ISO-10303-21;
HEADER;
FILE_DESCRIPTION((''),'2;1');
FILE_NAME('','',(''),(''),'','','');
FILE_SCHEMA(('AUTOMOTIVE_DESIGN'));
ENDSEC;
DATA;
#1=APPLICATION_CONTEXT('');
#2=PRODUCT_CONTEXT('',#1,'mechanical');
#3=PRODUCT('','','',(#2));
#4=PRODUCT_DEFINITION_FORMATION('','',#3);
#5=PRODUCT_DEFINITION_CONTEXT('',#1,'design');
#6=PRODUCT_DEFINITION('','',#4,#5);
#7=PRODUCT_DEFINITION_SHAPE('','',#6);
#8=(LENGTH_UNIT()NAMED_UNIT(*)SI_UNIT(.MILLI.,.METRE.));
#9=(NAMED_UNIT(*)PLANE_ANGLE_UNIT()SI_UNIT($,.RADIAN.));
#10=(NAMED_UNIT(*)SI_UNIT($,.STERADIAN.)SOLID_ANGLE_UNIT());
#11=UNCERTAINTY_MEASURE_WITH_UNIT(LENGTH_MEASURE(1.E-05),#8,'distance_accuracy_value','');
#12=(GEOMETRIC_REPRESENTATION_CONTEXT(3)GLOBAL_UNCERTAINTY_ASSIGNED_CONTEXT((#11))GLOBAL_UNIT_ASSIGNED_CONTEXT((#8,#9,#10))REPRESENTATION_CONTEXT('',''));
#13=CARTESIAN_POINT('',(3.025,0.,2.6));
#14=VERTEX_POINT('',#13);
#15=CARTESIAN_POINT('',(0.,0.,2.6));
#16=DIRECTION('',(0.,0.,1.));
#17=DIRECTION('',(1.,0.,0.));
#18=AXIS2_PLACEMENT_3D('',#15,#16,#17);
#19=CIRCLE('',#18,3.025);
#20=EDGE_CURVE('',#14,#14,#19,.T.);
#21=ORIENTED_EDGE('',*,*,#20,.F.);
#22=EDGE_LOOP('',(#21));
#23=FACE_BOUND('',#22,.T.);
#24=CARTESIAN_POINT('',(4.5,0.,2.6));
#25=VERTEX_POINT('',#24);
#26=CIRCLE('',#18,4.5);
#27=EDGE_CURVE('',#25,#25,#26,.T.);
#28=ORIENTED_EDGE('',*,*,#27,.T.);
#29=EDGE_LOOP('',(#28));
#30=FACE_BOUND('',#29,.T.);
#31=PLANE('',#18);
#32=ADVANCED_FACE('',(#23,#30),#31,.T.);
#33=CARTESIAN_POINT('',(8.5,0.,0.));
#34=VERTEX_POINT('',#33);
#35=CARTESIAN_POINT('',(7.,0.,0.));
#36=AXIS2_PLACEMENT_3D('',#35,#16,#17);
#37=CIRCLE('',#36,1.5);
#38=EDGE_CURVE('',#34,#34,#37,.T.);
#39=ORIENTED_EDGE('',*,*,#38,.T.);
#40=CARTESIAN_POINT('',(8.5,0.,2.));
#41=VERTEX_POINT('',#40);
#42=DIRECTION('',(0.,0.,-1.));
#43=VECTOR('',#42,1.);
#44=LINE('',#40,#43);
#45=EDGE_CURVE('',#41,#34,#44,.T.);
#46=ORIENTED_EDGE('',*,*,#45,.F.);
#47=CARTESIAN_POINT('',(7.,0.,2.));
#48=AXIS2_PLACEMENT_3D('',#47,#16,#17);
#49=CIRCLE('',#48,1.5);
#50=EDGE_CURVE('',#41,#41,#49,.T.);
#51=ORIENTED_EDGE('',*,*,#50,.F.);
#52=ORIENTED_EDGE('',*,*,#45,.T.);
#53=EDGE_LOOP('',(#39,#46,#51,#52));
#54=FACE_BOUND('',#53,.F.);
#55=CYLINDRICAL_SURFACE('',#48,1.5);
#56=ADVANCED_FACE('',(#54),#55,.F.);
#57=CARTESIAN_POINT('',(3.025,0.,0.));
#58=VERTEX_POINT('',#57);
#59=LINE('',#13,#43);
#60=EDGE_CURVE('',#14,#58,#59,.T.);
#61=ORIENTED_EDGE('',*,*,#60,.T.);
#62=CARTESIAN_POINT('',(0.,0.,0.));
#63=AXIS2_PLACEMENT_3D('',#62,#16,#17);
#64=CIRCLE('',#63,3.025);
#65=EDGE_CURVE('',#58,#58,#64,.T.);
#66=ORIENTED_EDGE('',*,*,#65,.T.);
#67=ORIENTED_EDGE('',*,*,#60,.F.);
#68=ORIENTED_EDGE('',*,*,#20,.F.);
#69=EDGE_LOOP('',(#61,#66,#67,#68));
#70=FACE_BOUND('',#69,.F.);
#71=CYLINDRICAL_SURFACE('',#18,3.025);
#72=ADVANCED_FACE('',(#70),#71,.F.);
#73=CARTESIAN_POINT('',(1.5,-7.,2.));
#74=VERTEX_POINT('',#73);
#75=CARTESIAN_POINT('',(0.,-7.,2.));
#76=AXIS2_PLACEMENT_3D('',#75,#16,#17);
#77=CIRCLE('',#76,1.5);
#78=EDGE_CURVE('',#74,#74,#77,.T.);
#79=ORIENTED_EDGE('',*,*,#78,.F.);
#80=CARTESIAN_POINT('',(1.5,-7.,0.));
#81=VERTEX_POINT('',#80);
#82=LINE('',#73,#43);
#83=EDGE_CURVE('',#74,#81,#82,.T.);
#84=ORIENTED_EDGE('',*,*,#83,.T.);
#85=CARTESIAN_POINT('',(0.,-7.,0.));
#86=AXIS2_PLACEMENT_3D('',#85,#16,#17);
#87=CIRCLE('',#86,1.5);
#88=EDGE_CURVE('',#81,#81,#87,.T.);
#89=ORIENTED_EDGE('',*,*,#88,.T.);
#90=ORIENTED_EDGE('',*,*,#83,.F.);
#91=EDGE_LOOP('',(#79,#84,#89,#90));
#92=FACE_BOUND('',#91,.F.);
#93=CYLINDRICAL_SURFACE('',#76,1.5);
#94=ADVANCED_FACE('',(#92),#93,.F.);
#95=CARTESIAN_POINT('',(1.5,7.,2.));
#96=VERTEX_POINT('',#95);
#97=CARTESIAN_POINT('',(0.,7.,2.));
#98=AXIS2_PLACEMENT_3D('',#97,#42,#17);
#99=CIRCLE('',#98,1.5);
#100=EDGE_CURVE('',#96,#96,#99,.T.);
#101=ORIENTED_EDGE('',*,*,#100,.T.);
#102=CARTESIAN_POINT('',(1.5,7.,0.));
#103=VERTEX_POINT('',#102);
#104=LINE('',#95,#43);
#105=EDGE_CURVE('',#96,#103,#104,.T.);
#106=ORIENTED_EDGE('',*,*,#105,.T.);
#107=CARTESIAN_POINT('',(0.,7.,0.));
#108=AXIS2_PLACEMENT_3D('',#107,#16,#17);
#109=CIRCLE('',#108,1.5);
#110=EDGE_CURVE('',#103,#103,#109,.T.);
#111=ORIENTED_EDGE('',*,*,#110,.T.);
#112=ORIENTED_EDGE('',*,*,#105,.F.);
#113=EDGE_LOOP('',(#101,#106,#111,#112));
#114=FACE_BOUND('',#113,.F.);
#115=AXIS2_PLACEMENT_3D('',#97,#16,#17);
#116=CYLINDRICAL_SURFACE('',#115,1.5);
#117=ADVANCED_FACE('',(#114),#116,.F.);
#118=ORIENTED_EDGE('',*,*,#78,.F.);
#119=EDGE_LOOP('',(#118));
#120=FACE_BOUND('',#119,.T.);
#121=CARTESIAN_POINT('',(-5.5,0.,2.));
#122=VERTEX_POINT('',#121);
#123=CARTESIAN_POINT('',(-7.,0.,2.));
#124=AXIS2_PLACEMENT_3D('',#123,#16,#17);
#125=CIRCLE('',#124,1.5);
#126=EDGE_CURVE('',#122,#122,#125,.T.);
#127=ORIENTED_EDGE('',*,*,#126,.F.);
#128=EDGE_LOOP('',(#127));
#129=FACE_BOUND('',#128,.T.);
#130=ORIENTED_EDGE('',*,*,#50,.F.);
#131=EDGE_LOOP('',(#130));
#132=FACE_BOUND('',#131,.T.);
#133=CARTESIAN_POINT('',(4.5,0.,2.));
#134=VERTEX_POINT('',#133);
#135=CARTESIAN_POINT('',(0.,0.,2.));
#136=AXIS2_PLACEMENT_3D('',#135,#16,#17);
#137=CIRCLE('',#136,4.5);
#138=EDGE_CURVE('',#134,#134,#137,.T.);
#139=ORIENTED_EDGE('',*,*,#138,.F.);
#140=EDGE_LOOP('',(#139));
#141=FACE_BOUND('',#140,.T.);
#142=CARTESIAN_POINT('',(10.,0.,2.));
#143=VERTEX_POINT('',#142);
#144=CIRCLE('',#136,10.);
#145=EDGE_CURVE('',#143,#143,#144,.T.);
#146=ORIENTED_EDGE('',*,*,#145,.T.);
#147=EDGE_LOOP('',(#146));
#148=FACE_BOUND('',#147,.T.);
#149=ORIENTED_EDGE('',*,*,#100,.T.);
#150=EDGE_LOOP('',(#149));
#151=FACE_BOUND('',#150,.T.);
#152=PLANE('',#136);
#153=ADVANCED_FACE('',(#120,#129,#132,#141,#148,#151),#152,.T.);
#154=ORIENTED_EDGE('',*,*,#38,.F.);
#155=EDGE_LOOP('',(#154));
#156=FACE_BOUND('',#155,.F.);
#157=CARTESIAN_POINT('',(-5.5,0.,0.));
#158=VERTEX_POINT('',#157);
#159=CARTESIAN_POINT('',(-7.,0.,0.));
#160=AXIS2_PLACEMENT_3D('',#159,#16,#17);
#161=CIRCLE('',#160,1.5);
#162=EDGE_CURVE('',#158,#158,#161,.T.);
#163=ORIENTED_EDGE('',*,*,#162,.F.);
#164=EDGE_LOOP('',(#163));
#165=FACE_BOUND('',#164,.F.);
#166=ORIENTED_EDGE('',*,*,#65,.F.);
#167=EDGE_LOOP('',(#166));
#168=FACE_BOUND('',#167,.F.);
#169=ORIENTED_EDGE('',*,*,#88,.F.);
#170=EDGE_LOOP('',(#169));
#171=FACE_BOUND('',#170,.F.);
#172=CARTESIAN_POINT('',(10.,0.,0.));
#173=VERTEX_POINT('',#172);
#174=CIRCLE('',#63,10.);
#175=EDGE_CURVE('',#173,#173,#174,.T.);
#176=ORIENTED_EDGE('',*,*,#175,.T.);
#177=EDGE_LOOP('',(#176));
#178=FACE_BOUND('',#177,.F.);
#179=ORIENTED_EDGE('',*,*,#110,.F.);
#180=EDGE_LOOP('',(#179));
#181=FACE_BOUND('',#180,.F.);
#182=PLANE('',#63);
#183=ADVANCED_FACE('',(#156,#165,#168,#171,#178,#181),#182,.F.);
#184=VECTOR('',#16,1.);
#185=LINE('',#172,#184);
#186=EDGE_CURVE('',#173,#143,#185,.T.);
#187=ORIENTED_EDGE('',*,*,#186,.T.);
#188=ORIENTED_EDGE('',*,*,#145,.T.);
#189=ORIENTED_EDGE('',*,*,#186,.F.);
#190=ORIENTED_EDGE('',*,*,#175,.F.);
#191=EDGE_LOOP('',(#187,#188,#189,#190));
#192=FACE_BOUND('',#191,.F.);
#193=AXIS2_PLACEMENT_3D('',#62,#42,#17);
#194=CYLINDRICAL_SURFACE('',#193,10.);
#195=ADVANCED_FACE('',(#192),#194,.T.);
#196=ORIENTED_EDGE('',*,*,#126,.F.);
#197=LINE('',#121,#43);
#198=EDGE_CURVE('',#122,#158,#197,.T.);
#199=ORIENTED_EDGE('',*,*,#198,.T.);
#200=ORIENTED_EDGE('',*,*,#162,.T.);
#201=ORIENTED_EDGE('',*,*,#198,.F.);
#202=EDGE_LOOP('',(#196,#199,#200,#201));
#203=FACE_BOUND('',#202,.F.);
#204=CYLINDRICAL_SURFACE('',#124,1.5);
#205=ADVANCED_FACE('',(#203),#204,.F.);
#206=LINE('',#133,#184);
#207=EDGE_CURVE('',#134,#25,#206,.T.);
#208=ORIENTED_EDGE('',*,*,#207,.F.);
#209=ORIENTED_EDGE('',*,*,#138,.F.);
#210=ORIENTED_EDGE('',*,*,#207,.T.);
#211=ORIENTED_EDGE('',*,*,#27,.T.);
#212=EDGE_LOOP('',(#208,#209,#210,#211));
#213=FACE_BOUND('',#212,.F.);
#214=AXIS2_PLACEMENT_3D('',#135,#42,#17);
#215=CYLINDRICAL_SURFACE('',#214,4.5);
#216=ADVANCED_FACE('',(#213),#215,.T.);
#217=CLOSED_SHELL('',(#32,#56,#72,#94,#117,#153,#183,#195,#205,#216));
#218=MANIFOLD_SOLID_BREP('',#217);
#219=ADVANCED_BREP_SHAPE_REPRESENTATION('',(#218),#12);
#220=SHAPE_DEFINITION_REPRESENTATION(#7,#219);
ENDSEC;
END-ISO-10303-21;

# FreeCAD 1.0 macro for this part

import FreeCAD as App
import Part
import Sketcher

doc = App.newDocument("Part")
body = doc.addObject("PartDesign::Body", "Body")

# Sketch on XY plane
sketch1 = doc.addObject("Sketcher::SketchObject", "Sketch")
body.addObject(sketch1)
sketch1.AttachmentSupport = (doc.XY_Plane, [""])
sketch1.MapMode = "FlatFace"
sketch1.addGeometry(Part.Circle(App.Vector(0, 0, 0), App.Vector(0, 0, 1), 10), False)
sketch1.addConstraint([
    Sketcher.Constraint("Coincident", 0, 3, -1, 1),
    Sketcher.Constraint("Diameter", 0, 20.0),
])
pad1 = doc.addObject("PartDesign::Pad", "Pad")
body.addObject(pad1)
pad1.Profile = sketch1
pad1.Length = 2

# Sketch on XY plane
sketch2 = doc.addObject("Sketcher::SketchObject", "Sketch001")
body.addObject(sketch2)
sketch2.AttachmentSupport = (doc.XY_Plane, [""])
sketch2.MapMode = "FlatFace"
sketch2.AttachmentOffset = App.Placement(App.Vector(0, 0, 2), App.Rotation())
sketch2.addGeometry(Part.Circle(App.Vector(0, 0, 0), App.Vector(0, 0, 1), 4.5), False)
sketch2.addConstraint([
    Sketcher.Constraint("Coincident", 0, 3, -1, 1),
    Sketcher.Constraint("Diameter", 0, 9.0),
])
pad2 = doc.addObject("PartDesign::Pad", "Pad001")
body.addObject(pad2)
pad2.Profile = sketch2
pad2.Length = 0.6

# Sketch on XY plane
sketch3 = doc.addObject("Sketcher::SketchObject", "Sketch002")
body.addObject(sketch3)
sketch3.AttachmentSupport = (doc.XY_Plane, [""])
sketch3.MapMode = "FlatFace"
sketch3.AttachmentOffset = App.Placement(App.Vector(0, 0, 2.6), App.Rotation())
sketch3.addGeometry(Part.Circle(App.Vector(0, 0, 0), App.Vector(0, 0, 1), 3), False)
sketch3.addConstraint([
    Sketcher.Constraint("Coincident", 0, 3, -1, 1),
    Sketcher.Constraint("Diameter", 0, 6.05),
])
pocket1 = doc.addObject("PartDesign::Pocket", "Pocket")
body.addObject(pocket1)
pocket1.Profile = sketch3
pocket1.Type = "ThroughAll"

# Sketch on XY plane
sketch4 = doc.addObject("Sketcher::SketchObject", "Sketch003")
body.addObject(sketch4)
sketch4.AttachmentSupport = (doc.XY_Plane, [""])
sketch4.MapMode = "FlatFace"
sketch4.AttachmentOffset = App.Placement(App.Vector(0, 0, 2), App.Rotation())
sketch4.addGeometry([
    Part.Circle(App.Vector(0, 7, 0), App.Vector(0, 0, 1), 1.5),
    Part.Circle(App.Vector(-7, 0, 0), App.Vector(0, 0, 1), 1.5),
    Part.Circle(App.Vector(0, -7, 0), App.Vector(0, 0, 1), 1.5),
    Part.Circle(App.Vector(7, 0, 0), App.Vector(0, 0, 1), 1.5),
], False)
sketch4.addConstraint([
    Sketcher.Constraint("Equal", 0, 1),
    Sketcher.Constraint("Equal", 1, 2),
    Sketcher.Constraint("Equal", 2, 3),
    Sketcher.Constraint("Symmetric", 0, 3, 2, 3, -1, 1),
    Sketcher.Constraint("Symmetric", 1, 3, 3, 3, -1, 1),
    Sketcher.Constraint("PointOnObject", 0, 3, -2),
    Sketcher.Constraint("PointOnObject", 1, 3, -1),
    Sketcher.Constraint("Diameter", 0, 3.0),
    Sketcher.Constraint("DistanceY", -1, 1, 0, 3, 7.0),
    Sketcher.Constraint("DistanceX", 1, 3, -1, 1, 7.0),
])
pocket2 = doc.addObject("PartDesign::Pocket", "Pocket001")
body.addObject(pocket2)
pocket2.Profile = sketch4
pocket2.Type = "ThroughAll"

doc.recompute()
